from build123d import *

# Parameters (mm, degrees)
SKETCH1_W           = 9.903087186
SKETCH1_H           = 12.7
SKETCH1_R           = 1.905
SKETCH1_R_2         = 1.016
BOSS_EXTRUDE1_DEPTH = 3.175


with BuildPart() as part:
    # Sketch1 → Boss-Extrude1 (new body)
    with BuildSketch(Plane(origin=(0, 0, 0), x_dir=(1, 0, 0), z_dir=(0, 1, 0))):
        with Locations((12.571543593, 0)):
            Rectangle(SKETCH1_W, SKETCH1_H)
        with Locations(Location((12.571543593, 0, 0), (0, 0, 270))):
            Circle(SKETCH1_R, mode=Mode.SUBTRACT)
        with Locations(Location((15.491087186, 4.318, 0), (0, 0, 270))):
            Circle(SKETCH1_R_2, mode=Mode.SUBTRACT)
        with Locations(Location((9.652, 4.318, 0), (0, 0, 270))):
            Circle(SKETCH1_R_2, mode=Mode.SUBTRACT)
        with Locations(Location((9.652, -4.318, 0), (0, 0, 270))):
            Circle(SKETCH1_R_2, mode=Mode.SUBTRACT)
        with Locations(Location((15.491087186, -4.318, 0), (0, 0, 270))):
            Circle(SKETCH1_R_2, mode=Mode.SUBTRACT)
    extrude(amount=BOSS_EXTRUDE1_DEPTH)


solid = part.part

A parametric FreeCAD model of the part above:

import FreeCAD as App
import Part
import Sketcher
from FreeCAD import Vector
Q = App.Units.Quantity


def add_polygon(sketch, points):
    """Adds a closed chain of lines whose ends are joined by coincident constraints."""
    first, n = sketch.GeometryCount, len(points)
    for a, b in zip(points, points[1:] + points[:1]):
        sketch.addGeometry(Part.LineSegment(App.Vector(*a, 0), App.Vector(*b, 0)), False)
    for i in range(n):
        sketch.addConstraint(Sketcher.Constraint("Coincident", first + i, 2, first + (i + 1) % n, 1))

doc = App.newDocument("Part")
body = doc.addObject("PartDesign::Body", "Body")

sketch1 = doc.addObject("Sketcher::SketchObject", "Sketch")
body.addObject(sketch1)
sketch1.AttachmentSupport = (doc.XZ_Plane, [""])
sketch1.MapMode = "FlatFace"
add_polygon(sketch1, [(7.6, -6.3), (7.6, 6.3), (17.5, 6.3), (17.5, -6.3)])
sketch1.addGeometry(Part.Circle(Vector(9.7, 4.3, 0), Vector(0, 0, 1), 1), False)
sketch1.addGeometry(Part.Circle(Vector(15.5, 4.3, 0), Vector(0, 0, 1), 1), False)
sketch1.addGeometry(Part.Circle(Vector(9.7, -4.3, 0), Vector(0, 0, 1), 1), False)
sketch1.addGeometry(Part.Circle(Vector(12.6, 0, 0), Vector(0, 0, 1), 1.9), False)
sketch1.addGeometry(Part.Circle(Vector(15.5, -4.3, 0), Vector(0, 0, 1), 1), False)
sketch1.addConstraint([
    Sketcher.Constraint("Vertical", 0),
    Sketcher.Constraint("Horizontal", 1),
    Sketcher.Constraint("Vertical", 2),
    Sketcher.Constraint("Horizontal", 3),
    Sketcher.Constraint("Equal", 4, 5),
    Sketcher.Constraint("Equal", 5, 6),
    Sketcher.Constraint("Equal", 6, 8),
    Sketcher.Constraint("Symmetric", 4, 3, 6, 3, -1),
    Sketcher.Constraint("Symmetric", 5, 3, 8, 3, -1),
    Sketcher.Constraint("PointOnObject", 7, 3, -1),
    Sketcher.Constraint("Horizontal", 4, 3, 5, 3),
    Sketcher.Constraint("Diameter", 4, Q("0.08 in")),
    Sketcher.Constraint("Diameter", 7, Q("0.15 in")),
    Sketcher.Constraint("DistanceY", 0, 1, 0, 2, Q("0.5 in")),
    Sketcher.Constraint("DistanceX", -1, 1, 0, 2, Q("0.3 in")),
    Sketcher.Constraint("DistanceX", -1, 1, 4, 3, Q("0.38 in")),
    Sketcher.Constraint("DistanceY", -1, 1, 4, 3, Q("0.17 in")),
    Sketcher.Constraint("DistanceY", -1, 1, 0, 2, Q("0.25 in")),
    Sketcher.Constraint("DistanceX", 5, 3, 1, 2, Q("0.08 in")),
    Sketcher.Constraint("DistanceX", 1, 1, 1, 2, Q("9.903087 mm")),
    Sketcher.Constraint("DistanceX", -1, 1, 7, 3, Q("12.571544 mm")),
])
pad1 = doc.addObject("PartDesign::Pad", "Pad")
body.addObject(pad1)
pad1.Profile = sketch1
pad1.Length = Q("0.125 in")
pad1.Reversed = True

doc.recompute()
